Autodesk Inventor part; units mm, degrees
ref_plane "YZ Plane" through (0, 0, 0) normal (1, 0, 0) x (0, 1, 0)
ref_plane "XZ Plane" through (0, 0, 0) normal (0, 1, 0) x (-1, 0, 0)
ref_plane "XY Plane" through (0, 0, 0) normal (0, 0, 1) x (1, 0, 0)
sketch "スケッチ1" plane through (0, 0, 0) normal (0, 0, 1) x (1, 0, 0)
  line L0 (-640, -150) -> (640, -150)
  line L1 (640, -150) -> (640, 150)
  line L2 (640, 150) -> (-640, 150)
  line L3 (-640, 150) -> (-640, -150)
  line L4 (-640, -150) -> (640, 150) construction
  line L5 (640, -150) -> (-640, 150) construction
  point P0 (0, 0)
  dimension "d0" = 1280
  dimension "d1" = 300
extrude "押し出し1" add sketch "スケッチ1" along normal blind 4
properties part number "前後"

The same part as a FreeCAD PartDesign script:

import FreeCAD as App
import Part
import Sketcher
Q = App.Units.Quantity

doc = App.newDocument("Part")
params = doc.addObject("Spreadsheet::Sheet", "Params")
for row, (alias, value) in enumerate([
    ("sketch1_width", "1280 mm"),
    ("sketch1_height", "300 mm"),
    ("pad1_length", "4 mm"),
], start=1):
    params.set(f"A{row}", alias)
    params.set(f"B{row}", "=" + value)
    params.setAlias(f"B{row}", alias)

body = doc.addObject("PartDesign::Body", "Body")

# Sketch on XY plane
sketch1 = body.newObject("Sketcher::SketchObject", "Sketch")
sketch1.AttachmentSupport = (doc.getObject("XY_Plane"), [""])
sketch1.MapMode = "FlatFace"
sketch1.addGeometry([
    Part.LineSegment(App.Vector(-640, 150, 0), App.Vector(-640, -150, 0)),
    Part.LineSegment(App.Vector(-640, -150, 0), App.Vector(640, -150, 0)),
    Part.LineSegment(App.Vector(640, -150, 0), App.Vector(640, 150, 0)),
    Part.LineSegment(App.Vector(640, 150, 0), App.Vector(-640, 150, 0)),
], False)
sketch1.addConstraint([
    Sketcher.Constraint("Coincident", 0, 2, 1, 1),
    Sketcher.Constraint("Coincident", 1, 2, 2, 1),
    Sketcher.Constraint("Coincident", 2, 2, 3, 1),
    Sketcher.Constraint("Coincident", 3, 2, 0, 1),
    Sketcher.Constraint("Vertical", 0),
    Sketcher.Constraint("Horizontal", 1),
    Sketcher.Constraint("Vertical", 2),
    Sketcher.Constraint("Horizontal", 3),
    Sketcher.Constraint("Symmetric", 0, 2, 2, 2, -1, 1),
    Sketcher.Constraint("DistanceX", 1, 1, 1, 2, Q("1280 mm")),
    Sketcher.Constraint("DistanceY", 0, 2, 0, 1, Q("300 mm")),
])
sketch1.setExpression("Constraints[9]", "Params.sketch1_width")
sketch1.setExpression("Constraints[10]", "Params.sketch1_height")
pad1 = body.newObject("PartDesign::Pad", "Pad")
pad1.Profile = sketch1
pad1.setExpression("Length", "Params.pad1_length")

doc.recompute()
